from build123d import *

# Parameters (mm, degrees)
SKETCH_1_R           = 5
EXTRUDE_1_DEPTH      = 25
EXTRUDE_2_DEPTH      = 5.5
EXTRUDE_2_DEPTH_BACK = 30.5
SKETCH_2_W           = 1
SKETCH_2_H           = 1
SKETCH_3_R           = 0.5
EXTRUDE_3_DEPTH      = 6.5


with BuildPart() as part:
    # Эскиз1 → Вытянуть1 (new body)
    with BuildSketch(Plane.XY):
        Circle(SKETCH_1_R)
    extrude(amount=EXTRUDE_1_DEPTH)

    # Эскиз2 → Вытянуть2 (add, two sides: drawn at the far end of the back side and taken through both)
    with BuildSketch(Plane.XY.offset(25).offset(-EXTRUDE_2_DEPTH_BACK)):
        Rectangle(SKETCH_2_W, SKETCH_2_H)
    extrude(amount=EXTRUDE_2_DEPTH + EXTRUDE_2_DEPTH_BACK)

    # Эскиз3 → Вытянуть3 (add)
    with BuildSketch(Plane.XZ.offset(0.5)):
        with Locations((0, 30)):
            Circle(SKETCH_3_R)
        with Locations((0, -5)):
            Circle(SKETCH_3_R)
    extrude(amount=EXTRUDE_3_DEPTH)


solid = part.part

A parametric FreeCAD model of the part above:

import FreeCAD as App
import Part
import Sketcher
from FreeCAD import Vector
Q = App.Units.Quantity


def add_polygon(sketch, points):
    """Adds a closed chain of lines whose ends are joined by coincident constraints."""
    first, n = sketch.GeometryCount, len(points)
    for a, b in zip(points, points[1:] + points[:1]):
        sketch.addGeometry(Part.LineSegment(App.Vector(*a, 0), App.Vector(*b, 0)), False)
    for i in range(n):
        sketch.addConstraint(Sketcher.Constraint("Coincident", first + i, 2, first + (i + 1) % n, 1))

doc = App.newDocument("Part")
params = doc.addObject("Spreadsheet::Sheet", "Params")
for row, (alias, value) in enumerate([
    ("sketch1_diameter", "10 mm"),
    ("pad1_length", "25 mm"),
    ("sketch2_width", "1 mm"),
    ("pad2_length", "5.5 mm"),
    ("pad2_length2", "30.5 mm"),
    ("sketch3_diameter", "1 mm"),
    ("pad3_length", "6.5 mm"),
], start=1):
    params.set(f"A{row}", alias)
    params.set(f"B{row}", "=" + value)
    params.setAlias(f"B{row}", alias)

body = doc.addObject("PartDesign::Body", "Body")

# Sketch on XY plane
sketch1 = body.newObject("Sketcher::SketchObject", "Sketch")
sketch1.AttachmentSupport = (doc.getObject("XY_Plane"), [""])
sketch1.MapMode = "FlatFace"
sketch1.addGeometry(Part.Circle(Vector(0, 0, 0), Vector(0, 0, 1), 5), False)
sketch1.addConstraint([
    Sketcher.Constraint("Coincident", 0, 3, -1, 1),
    Sketcher.Constraint("Diameter", 0, Q("10 mm")),
])
sketch1.setExpression("Constraints[1]", "Params.sketch1_diameter")
pad1 = body.newObject("PartDesign::Pad", "Pad")
pad1.Profile = sketch1
pad1.setExpression("Length", "Params.pad1_length")

# Sketch on XY plane
sketch2 = body.newObject("Sketcher::SketchObject", "Sketch001")
sketch2.AttachmentSupport = (doc.getObject("XY_Plane"), [""])
sketch2.MapMode = "FlatFace"
sketch2.AttachmentOffset = App.Placement(Vector(0, 0, 25), App.Rotation())
add_polygon(sketch2, [(-0.5, 0.5), (-0.5, -0.5), (0.5, -0.5), (0.5, 0.5)])  # lines 0-3
sketch2.addConstraint([
    Sketcher.Constraint("Vertical", 0),
    Sketcher.Constraint("Horizontal", 1),
    Sketcher.Constraint("Vertical", 2),
    Sketcher.Constraint("Horizontal", 3),
    Sketcher.Constraint("Symmetric", 0, 2, 2, 2, -1, 1),
    Sketcher.Constraint("Equal", 3, 0),
    Sketcher.Constraint("DistanceX", 1, 1, 1, 2, Q("1 mm")),
])
sketch2.setExpression("Constraints[10]", "Params.sketch2_width")
pad2 = body.newObject("PartDesign::Pad", "Pad001")
pad2.Profile = sketch2
pad2.Type = "TwoLengths"
pad2.setExpression("Length", "Params.pad2_length")
pad2.setExpression("Length2", "Params.pad2_length2")

# Sketch on XZ plane
sketch3 = body.newObject("Sketcher::SketchObject", "Sketch002")
sketch3.AttachmentSupport = (doc.getObject("XZ_Plane"), [""])
sketch3.MapMode = "FlatFace"
sketch3.AttachmentOffset = App.Placement(Vector(0, 0, 0.5), App.Rotation())
sketch3.addGeometry([
    Part.Circle(Vector(0, 30, 0), Vector(0, 0, 1), 0.5),
    Part.Circle(Vector(0, -5, 0), Vector(0, 0, 1), 0.5),
], False)
sketch3.addConstraint([
    Sketcher.Constraint("Equal", 0, 1),
    Sketcher.Constraint("PointOnObject", 0, 3, -2),
    Sketcher.Constraint("PointOnObject", 1, 3, -2),
    Sketcher.Constraint("Diameter", 0, Q("1 mm")),
    Sketcher.Constraint("DistanceY", -1, 1, 0, 3, Q("30 mm")),
    Sketcher.Constraint("DistanceY", 1, 3, -1, 1, Q("5 mm")),
])
sketch3.setExpression("Constraints[3]", "Params.sketch3_diameter")
pad3 = body.newObject("PartDesign::Pad", "Pad002")
pad3.Profile = sketch3
pad3.setExpression("Length", "Params.pad3_length")

doc.recompute()
